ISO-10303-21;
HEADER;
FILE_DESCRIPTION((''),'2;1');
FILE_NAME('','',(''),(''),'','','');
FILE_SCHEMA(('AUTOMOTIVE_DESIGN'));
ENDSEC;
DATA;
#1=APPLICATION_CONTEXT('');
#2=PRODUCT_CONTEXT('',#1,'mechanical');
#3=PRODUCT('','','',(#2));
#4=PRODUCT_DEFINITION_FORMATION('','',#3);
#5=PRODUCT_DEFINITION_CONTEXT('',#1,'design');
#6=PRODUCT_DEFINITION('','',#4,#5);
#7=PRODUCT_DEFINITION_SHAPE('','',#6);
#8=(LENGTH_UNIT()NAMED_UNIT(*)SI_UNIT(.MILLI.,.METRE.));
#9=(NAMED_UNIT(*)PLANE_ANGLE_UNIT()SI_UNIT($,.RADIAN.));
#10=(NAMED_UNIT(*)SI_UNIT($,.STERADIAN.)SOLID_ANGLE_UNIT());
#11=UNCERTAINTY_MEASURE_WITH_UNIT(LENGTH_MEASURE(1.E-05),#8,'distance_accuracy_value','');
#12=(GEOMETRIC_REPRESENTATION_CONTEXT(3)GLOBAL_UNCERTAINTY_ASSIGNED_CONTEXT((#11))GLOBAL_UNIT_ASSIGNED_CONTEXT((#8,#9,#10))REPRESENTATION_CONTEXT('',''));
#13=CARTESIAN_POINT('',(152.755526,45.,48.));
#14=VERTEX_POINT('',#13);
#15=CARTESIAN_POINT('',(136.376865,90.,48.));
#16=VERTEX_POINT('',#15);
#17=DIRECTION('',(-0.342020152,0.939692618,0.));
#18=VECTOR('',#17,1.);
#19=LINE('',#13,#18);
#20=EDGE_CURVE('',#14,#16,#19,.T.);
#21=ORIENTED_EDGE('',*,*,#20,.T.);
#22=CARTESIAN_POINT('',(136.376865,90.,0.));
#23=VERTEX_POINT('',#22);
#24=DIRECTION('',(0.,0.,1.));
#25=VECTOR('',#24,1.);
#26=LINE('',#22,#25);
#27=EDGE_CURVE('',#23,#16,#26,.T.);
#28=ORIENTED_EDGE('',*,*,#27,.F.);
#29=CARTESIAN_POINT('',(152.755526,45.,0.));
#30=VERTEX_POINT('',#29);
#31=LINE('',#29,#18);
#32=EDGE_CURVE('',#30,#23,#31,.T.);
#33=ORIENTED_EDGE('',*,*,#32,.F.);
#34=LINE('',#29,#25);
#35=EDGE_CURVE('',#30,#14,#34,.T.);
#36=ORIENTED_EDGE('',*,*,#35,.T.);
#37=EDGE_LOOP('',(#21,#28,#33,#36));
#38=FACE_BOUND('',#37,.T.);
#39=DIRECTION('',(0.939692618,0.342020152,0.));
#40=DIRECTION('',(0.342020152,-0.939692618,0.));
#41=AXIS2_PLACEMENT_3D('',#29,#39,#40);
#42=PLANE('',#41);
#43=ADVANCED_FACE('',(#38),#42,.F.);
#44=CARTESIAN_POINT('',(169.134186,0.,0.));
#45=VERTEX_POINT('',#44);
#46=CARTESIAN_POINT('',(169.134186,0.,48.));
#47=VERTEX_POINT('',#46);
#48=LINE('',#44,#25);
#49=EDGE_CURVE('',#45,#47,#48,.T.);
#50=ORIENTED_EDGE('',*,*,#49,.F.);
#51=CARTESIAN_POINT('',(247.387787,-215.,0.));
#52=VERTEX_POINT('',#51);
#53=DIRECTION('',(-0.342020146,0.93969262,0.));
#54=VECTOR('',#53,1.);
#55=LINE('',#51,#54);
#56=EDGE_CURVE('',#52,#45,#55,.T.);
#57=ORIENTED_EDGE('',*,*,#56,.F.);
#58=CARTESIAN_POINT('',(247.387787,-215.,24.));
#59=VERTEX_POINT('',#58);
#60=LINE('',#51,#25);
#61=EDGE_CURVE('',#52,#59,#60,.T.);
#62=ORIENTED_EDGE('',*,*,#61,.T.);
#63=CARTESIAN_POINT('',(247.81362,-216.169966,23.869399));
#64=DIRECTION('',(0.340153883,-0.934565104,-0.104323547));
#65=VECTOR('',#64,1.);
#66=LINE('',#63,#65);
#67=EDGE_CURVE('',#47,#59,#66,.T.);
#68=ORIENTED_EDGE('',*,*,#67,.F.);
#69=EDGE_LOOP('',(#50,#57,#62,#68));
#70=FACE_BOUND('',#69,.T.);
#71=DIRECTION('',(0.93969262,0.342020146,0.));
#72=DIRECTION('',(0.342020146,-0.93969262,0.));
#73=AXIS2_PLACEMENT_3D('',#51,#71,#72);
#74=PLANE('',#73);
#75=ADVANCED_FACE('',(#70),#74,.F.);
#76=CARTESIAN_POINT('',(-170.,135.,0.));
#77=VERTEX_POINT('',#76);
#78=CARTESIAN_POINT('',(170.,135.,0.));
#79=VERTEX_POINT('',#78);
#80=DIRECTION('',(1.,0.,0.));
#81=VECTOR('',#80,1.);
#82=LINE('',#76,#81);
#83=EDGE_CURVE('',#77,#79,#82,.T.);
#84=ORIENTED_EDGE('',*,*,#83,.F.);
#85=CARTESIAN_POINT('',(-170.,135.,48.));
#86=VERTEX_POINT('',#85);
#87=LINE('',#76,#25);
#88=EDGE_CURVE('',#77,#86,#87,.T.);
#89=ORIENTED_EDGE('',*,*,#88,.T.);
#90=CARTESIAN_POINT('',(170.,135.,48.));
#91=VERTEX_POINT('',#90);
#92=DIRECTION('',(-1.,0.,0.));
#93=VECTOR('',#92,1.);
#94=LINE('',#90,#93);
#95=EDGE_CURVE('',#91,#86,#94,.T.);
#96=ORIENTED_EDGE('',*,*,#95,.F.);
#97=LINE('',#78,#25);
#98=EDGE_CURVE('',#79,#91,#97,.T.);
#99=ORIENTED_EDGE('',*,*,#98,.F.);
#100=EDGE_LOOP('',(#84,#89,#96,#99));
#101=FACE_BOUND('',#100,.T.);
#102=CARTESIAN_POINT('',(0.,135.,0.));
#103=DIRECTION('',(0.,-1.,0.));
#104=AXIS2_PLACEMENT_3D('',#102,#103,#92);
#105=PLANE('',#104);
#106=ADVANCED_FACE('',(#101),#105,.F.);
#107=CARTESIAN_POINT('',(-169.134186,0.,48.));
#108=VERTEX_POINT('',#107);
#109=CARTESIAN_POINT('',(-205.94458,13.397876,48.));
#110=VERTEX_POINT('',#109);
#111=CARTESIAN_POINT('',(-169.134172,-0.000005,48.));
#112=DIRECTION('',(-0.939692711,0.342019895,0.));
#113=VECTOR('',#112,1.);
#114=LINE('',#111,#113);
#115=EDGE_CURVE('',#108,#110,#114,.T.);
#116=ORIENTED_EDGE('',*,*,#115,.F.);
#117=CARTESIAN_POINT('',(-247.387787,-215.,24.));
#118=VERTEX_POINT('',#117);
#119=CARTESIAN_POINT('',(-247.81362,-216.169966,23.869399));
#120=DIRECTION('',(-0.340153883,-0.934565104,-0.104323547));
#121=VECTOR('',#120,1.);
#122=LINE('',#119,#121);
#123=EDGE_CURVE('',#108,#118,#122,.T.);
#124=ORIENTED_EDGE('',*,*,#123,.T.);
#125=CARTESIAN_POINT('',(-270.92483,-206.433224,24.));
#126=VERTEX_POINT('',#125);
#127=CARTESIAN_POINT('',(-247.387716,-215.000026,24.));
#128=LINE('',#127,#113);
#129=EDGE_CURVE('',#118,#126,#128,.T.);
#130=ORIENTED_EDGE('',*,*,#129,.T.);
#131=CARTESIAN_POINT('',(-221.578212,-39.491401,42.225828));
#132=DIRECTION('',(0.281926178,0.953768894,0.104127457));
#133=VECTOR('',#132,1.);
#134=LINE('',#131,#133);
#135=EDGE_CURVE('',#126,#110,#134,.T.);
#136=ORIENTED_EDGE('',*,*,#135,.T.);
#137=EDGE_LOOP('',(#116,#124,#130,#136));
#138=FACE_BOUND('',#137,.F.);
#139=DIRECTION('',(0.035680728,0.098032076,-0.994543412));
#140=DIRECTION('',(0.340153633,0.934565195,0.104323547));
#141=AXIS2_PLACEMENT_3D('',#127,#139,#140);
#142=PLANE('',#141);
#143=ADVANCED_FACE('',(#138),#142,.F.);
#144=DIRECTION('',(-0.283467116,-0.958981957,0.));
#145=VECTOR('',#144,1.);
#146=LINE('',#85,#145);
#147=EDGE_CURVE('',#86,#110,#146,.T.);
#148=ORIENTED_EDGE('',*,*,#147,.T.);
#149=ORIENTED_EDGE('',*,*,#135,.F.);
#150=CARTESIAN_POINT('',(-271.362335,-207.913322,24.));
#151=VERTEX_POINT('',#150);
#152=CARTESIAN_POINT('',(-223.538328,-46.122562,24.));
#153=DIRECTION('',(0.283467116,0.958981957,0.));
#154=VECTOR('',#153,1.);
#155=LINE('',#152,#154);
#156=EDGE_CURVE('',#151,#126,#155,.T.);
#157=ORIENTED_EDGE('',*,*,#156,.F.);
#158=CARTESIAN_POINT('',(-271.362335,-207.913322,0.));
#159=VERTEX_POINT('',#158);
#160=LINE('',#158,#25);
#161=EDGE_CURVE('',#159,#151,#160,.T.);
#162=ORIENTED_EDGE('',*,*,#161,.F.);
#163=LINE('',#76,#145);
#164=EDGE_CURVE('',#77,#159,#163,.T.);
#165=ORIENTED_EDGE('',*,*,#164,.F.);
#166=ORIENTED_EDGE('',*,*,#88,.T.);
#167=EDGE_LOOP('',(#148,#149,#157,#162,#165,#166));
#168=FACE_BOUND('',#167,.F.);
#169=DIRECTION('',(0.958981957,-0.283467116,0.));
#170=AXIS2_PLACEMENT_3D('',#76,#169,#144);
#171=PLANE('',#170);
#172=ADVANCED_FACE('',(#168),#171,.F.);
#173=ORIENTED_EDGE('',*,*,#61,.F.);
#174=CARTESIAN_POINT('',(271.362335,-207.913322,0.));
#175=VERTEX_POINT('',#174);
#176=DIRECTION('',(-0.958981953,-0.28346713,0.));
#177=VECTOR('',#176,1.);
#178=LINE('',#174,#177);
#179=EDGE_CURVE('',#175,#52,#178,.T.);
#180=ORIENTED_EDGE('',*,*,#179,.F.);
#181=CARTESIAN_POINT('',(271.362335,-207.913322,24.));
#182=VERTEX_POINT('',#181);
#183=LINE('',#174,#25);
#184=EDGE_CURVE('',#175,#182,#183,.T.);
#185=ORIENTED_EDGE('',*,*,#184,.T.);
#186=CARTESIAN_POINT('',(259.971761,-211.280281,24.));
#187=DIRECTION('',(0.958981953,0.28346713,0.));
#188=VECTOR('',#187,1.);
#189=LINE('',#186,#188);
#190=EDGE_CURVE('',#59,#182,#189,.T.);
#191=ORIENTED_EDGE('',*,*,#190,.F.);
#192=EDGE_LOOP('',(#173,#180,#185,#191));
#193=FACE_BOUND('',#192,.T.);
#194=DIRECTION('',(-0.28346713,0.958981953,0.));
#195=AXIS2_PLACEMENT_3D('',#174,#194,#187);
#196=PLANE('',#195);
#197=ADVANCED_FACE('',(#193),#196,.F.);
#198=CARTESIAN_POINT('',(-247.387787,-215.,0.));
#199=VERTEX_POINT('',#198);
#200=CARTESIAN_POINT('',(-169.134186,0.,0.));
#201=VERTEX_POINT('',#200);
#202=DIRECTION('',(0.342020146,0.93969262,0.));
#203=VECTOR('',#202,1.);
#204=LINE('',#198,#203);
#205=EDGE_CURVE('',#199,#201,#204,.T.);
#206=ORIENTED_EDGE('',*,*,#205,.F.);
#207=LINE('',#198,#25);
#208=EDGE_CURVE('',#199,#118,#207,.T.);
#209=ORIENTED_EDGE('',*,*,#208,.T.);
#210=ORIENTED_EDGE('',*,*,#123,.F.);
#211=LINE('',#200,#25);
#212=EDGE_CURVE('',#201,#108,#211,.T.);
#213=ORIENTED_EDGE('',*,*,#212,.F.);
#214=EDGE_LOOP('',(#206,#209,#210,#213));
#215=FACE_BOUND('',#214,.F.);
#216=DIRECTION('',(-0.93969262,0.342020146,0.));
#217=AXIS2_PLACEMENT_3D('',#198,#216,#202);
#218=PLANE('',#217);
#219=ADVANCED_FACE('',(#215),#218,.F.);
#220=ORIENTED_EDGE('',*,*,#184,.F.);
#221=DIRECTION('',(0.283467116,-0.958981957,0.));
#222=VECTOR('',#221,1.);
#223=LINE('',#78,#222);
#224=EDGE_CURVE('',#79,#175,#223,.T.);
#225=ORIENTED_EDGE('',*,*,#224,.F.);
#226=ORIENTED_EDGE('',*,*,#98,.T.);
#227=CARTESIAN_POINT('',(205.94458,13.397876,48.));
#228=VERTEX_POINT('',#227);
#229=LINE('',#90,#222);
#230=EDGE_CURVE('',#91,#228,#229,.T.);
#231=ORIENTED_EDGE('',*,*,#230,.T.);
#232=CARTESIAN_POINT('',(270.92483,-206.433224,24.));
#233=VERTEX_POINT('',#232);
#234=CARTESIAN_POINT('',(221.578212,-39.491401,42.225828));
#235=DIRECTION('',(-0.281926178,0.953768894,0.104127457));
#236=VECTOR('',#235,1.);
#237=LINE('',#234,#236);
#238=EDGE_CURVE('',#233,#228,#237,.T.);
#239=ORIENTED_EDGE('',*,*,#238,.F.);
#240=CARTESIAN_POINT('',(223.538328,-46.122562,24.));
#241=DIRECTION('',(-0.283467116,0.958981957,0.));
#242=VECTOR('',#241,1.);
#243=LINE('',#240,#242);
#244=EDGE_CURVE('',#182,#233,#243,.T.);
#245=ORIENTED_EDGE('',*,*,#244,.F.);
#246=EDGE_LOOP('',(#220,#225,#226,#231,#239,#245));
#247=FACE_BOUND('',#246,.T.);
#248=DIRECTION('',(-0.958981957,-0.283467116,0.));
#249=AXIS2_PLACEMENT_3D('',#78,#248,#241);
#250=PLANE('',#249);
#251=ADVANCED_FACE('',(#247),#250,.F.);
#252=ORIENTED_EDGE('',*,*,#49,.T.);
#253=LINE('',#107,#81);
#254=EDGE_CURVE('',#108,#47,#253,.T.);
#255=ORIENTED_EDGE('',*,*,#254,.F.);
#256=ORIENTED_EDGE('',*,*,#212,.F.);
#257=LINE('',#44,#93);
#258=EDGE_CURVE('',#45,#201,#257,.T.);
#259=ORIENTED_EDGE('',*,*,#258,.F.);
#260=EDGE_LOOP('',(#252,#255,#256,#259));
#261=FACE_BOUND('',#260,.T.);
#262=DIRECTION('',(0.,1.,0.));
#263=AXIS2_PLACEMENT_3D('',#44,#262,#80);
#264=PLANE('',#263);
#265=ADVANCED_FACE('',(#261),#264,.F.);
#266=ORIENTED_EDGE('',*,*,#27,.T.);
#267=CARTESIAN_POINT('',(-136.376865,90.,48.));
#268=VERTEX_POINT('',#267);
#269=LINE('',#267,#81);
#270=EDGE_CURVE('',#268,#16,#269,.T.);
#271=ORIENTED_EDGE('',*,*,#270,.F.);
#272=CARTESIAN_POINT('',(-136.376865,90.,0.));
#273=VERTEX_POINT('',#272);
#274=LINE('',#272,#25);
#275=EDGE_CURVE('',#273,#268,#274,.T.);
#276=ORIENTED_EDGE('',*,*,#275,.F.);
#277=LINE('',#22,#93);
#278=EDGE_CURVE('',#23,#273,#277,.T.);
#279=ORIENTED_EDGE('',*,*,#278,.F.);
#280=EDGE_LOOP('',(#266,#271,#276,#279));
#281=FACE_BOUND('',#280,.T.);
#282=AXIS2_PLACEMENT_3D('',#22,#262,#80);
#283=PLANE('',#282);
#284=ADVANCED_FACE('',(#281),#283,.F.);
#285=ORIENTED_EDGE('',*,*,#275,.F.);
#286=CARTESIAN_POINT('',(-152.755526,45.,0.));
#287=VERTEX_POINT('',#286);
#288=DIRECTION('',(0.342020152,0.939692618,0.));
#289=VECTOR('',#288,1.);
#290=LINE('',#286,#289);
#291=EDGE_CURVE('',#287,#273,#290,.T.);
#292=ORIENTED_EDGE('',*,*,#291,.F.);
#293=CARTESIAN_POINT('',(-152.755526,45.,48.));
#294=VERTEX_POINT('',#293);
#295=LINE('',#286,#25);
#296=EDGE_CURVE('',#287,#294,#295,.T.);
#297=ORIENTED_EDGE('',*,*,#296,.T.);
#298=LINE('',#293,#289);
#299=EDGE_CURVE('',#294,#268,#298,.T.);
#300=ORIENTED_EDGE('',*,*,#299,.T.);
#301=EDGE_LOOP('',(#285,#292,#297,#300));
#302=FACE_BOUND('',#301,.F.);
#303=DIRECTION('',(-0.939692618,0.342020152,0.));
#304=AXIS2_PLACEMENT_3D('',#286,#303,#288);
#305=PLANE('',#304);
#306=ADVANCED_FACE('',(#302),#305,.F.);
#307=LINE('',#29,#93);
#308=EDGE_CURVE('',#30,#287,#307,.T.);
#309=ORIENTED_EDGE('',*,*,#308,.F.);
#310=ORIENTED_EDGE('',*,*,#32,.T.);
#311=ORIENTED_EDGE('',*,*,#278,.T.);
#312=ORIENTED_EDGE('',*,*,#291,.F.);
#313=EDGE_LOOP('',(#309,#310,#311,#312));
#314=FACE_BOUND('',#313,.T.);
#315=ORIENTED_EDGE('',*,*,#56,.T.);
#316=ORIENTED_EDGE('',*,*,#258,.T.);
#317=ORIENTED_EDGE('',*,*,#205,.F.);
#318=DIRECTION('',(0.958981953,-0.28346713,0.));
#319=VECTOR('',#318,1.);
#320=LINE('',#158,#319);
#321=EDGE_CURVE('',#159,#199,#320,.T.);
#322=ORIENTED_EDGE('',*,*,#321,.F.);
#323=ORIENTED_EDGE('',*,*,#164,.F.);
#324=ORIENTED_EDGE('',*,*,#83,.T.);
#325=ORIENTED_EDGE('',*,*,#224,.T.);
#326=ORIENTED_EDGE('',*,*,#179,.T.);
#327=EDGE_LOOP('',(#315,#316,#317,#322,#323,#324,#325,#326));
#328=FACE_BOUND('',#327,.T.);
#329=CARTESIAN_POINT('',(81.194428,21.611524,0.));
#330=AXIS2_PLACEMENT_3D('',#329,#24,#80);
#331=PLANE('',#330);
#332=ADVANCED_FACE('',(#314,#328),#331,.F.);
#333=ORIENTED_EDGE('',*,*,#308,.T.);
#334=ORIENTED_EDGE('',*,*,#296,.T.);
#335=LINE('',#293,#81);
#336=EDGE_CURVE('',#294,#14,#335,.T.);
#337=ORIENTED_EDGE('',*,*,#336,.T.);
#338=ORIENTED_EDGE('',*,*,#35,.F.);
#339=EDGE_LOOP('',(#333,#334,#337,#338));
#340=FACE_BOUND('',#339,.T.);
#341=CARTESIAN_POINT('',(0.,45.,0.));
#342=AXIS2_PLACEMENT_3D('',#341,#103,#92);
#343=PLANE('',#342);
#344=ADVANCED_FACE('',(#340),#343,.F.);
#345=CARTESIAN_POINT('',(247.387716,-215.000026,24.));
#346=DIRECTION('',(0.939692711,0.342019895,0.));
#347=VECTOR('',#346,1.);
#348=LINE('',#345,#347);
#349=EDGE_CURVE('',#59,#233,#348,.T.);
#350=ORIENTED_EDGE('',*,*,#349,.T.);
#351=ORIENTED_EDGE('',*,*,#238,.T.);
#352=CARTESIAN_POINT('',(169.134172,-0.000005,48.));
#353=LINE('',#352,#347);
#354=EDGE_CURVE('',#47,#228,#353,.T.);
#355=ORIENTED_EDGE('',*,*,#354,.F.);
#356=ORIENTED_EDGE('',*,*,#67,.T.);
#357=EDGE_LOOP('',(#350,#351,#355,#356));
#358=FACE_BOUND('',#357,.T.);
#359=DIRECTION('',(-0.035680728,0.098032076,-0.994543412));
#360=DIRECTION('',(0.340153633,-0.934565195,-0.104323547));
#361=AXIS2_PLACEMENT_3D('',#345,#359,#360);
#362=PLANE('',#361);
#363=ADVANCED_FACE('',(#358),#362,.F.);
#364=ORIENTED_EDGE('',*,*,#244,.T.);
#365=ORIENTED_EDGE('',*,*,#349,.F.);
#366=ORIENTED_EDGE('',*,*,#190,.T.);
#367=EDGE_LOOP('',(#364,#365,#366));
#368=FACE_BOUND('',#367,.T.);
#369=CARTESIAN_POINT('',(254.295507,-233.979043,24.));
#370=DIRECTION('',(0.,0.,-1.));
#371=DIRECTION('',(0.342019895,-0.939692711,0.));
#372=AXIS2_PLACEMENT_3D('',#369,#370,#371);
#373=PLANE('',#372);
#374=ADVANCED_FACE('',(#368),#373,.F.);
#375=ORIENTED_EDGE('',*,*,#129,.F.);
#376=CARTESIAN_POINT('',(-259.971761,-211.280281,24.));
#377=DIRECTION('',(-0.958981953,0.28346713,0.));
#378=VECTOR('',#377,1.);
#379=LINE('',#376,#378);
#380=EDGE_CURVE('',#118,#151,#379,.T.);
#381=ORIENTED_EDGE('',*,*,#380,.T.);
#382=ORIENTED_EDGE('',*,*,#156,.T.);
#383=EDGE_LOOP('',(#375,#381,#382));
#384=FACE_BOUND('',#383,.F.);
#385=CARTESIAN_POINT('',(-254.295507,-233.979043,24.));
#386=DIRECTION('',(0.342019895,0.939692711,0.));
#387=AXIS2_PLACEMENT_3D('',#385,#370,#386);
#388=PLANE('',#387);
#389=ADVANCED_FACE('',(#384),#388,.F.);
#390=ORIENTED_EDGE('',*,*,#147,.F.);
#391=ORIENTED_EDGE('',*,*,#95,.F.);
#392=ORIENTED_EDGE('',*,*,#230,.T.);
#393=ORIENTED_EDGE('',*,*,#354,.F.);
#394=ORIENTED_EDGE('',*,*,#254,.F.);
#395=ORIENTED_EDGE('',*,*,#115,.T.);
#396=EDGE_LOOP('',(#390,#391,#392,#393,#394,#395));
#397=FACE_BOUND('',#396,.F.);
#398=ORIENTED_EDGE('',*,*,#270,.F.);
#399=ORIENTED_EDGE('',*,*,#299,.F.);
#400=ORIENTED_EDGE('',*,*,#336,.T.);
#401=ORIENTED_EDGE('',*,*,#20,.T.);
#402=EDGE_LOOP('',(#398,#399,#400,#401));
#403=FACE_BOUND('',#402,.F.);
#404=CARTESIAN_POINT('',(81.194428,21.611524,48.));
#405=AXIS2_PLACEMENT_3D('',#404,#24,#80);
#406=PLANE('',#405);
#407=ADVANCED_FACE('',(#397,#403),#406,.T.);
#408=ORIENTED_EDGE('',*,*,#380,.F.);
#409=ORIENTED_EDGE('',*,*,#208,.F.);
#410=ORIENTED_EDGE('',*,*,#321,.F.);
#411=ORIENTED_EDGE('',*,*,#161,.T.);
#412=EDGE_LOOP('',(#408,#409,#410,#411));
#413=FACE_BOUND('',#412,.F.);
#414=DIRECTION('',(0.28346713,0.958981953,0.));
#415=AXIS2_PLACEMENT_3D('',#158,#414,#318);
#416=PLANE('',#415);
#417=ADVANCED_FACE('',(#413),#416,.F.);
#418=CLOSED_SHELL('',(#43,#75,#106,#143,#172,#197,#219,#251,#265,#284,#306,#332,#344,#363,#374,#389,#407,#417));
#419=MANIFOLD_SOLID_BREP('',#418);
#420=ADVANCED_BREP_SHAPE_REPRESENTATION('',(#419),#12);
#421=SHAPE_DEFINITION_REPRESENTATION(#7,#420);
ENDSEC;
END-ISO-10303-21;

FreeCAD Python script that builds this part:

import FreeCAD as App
import Part
import Sketcher
from FreeCAD import Vector
Q = App.Units.Quantity


def add_polygon(sketch, points):
    """Adds a closed chain of lines whose ends are joined by coincident constraints."""
    first, n = sketch.GeometryCount, len(points)
    for a, b in zip(points, points[1:] + points[:1]):
        sketch.addGeometry(Part.LineSegment(App.Vector(*a, 0), App.Vector(*b, 0)), False)
    for i in range(n):
        sketch.addConstraint(Sketcher.Constraint("Coincident", first + i, 2, first + (i + 1) % n, 1))

doc = App.newDocument("Part")
body = doc.addObject("PartDesign::Body", "Body")

# Sketch on XY plane
sketch1 = body.newObject("Sketcher::SketchObject", "Sketch")
sketch1.AttachmentSupport = (doc.getObject("XY_Plane"), [""])
sketch1.MapMode = "FlatFace"
add_polygon(sketch1, [(0, 45), (-153, 45), (-136, 90), (0, 90), (0, 135), (-170, 135), (-271, -208), (-247, -215), (-169, 0), (0, 0)])  # lines 0-9
sketch1.addConstraint([
    Sketcher.Constraint("Horizontal", 0),
    Sketcher.Constraint("Horizontal", 2),
    Sketcher.Constraint("Vertical", 3),
    Sketcher.Constraint("Horizontal", 4),
    Sketcher.Constraint("Horizontal", 8),
    Sketcher.Constraint("Vertical", 9),
    Sketcher.Constraint("Coincident", 8, 2, -1, 1),
    Sketcher.Constraint("PointOnObject", 2, 2, -2),
    Sketcher.Constraint("Perpendicular", 5, 6),
    Sketcher.Constraint("Parallel", 1, 7),
    Sketcher.Constraint("Equal", 3, 9),
    Sketcher.Constraint("DistanceX", 4, 2, 4, 1, Q("170 mm")),
    Sketcher.Constraint("DistanceY", 3, 1, 3, 2, Q("45 mm")),
    Sketcher.Constraint("Angle", 1, Q("69.999999 deg")),
    Sketcher.Constraint("Distance", 6, Q("24.999999 mm")),
    Sketcher.Constraint("DistanceY", -1, 1, 1, 2, Q("90 mm")),
    Sketcher.Constraint("DistanceY", 6, 2, -1, 1, Q("215 mm")),
    Sketcher.Constraint("DistanceX", 0, 2, 0, 1, Q("152.755526 mm")),
    Sketcher.Constraint("DistanceX", 8, 1, 8, 2, Q("169.134186 mm")),
])
pad1 = body.newObject("PartDesign::Pad", "Pad")
pad1.Profile = sketch1
pad1.Length = 48

# Sketch on an angled plane
sketch2 = body.newObject("Sketcher::SketchObject", "Sketch001")
sketch2.Placement = App.Placement(Vector(-149.349245, 54.35868, 0), App.Rotation(Vector(0.342019895, 0.939692711, 0), Vector(0, 0, 1), Vector(0.939692711, -0.342019895, 0), "ZXY"))
add_polygon(sketch2, [(-287, 24), (-58, 48), (-316, 48), (-307, 24)])  # lines 0-3
sketch2.addConstraint([
    Sketcher.Constraint("Horizontal", 1),
    Sketcher.Constraint("Horizontal", 3),
    Sketcher.Constraint("DistanceY", -1, 1, 0, 2, Q("48 mm")),
    Sketcher.Constraint("DistanceY", -1, 1, 2, 2, Q("24 mm")),
    Sketcher.Constraint("DistanceX", 0, 2, -1, 1, Q("57.847299 mm")),
    Sketcher.Constraint("Distance", 0, Q("230.053528 mm")),
    Sketcher.Constraint("DistanceX", 1, 2, 1, 1, Q("257.813356 mm")),
    Sketcher.Constraint("DistanceX", 3, 1, 3, 2, Q("20.197046 mm")),
])
pocket1 = body.newObject("PartDesign::Pocket", "Pocket")
pocket1.Profile = sketch2
pocket1.Type = "ThroughAll"
body2 = doc.addObject("PartDesign::Body", "Body001")
doc.recompute()

body2.BaseFeature = body
doc.recompute()

mirroring = doc.addObject("Part::Mirroring", "Mirroring")
mirroring.Source = body
mirroring.Base = Vector(0, 0, 0)
mirroring.Normal = Vector(1, 0, 0)
body3 = doc.addObject("PartDesign::Body", "Body002")
body3.BaseFeature = mirroring
boolean = body2.newObject("PartDesign::Boolean", "Boolean")
boolean.Type = "Fuse"
boolean.addObjects([body3])
doc.recompute()
mirroring.Visibility = False

doc.recompute()
